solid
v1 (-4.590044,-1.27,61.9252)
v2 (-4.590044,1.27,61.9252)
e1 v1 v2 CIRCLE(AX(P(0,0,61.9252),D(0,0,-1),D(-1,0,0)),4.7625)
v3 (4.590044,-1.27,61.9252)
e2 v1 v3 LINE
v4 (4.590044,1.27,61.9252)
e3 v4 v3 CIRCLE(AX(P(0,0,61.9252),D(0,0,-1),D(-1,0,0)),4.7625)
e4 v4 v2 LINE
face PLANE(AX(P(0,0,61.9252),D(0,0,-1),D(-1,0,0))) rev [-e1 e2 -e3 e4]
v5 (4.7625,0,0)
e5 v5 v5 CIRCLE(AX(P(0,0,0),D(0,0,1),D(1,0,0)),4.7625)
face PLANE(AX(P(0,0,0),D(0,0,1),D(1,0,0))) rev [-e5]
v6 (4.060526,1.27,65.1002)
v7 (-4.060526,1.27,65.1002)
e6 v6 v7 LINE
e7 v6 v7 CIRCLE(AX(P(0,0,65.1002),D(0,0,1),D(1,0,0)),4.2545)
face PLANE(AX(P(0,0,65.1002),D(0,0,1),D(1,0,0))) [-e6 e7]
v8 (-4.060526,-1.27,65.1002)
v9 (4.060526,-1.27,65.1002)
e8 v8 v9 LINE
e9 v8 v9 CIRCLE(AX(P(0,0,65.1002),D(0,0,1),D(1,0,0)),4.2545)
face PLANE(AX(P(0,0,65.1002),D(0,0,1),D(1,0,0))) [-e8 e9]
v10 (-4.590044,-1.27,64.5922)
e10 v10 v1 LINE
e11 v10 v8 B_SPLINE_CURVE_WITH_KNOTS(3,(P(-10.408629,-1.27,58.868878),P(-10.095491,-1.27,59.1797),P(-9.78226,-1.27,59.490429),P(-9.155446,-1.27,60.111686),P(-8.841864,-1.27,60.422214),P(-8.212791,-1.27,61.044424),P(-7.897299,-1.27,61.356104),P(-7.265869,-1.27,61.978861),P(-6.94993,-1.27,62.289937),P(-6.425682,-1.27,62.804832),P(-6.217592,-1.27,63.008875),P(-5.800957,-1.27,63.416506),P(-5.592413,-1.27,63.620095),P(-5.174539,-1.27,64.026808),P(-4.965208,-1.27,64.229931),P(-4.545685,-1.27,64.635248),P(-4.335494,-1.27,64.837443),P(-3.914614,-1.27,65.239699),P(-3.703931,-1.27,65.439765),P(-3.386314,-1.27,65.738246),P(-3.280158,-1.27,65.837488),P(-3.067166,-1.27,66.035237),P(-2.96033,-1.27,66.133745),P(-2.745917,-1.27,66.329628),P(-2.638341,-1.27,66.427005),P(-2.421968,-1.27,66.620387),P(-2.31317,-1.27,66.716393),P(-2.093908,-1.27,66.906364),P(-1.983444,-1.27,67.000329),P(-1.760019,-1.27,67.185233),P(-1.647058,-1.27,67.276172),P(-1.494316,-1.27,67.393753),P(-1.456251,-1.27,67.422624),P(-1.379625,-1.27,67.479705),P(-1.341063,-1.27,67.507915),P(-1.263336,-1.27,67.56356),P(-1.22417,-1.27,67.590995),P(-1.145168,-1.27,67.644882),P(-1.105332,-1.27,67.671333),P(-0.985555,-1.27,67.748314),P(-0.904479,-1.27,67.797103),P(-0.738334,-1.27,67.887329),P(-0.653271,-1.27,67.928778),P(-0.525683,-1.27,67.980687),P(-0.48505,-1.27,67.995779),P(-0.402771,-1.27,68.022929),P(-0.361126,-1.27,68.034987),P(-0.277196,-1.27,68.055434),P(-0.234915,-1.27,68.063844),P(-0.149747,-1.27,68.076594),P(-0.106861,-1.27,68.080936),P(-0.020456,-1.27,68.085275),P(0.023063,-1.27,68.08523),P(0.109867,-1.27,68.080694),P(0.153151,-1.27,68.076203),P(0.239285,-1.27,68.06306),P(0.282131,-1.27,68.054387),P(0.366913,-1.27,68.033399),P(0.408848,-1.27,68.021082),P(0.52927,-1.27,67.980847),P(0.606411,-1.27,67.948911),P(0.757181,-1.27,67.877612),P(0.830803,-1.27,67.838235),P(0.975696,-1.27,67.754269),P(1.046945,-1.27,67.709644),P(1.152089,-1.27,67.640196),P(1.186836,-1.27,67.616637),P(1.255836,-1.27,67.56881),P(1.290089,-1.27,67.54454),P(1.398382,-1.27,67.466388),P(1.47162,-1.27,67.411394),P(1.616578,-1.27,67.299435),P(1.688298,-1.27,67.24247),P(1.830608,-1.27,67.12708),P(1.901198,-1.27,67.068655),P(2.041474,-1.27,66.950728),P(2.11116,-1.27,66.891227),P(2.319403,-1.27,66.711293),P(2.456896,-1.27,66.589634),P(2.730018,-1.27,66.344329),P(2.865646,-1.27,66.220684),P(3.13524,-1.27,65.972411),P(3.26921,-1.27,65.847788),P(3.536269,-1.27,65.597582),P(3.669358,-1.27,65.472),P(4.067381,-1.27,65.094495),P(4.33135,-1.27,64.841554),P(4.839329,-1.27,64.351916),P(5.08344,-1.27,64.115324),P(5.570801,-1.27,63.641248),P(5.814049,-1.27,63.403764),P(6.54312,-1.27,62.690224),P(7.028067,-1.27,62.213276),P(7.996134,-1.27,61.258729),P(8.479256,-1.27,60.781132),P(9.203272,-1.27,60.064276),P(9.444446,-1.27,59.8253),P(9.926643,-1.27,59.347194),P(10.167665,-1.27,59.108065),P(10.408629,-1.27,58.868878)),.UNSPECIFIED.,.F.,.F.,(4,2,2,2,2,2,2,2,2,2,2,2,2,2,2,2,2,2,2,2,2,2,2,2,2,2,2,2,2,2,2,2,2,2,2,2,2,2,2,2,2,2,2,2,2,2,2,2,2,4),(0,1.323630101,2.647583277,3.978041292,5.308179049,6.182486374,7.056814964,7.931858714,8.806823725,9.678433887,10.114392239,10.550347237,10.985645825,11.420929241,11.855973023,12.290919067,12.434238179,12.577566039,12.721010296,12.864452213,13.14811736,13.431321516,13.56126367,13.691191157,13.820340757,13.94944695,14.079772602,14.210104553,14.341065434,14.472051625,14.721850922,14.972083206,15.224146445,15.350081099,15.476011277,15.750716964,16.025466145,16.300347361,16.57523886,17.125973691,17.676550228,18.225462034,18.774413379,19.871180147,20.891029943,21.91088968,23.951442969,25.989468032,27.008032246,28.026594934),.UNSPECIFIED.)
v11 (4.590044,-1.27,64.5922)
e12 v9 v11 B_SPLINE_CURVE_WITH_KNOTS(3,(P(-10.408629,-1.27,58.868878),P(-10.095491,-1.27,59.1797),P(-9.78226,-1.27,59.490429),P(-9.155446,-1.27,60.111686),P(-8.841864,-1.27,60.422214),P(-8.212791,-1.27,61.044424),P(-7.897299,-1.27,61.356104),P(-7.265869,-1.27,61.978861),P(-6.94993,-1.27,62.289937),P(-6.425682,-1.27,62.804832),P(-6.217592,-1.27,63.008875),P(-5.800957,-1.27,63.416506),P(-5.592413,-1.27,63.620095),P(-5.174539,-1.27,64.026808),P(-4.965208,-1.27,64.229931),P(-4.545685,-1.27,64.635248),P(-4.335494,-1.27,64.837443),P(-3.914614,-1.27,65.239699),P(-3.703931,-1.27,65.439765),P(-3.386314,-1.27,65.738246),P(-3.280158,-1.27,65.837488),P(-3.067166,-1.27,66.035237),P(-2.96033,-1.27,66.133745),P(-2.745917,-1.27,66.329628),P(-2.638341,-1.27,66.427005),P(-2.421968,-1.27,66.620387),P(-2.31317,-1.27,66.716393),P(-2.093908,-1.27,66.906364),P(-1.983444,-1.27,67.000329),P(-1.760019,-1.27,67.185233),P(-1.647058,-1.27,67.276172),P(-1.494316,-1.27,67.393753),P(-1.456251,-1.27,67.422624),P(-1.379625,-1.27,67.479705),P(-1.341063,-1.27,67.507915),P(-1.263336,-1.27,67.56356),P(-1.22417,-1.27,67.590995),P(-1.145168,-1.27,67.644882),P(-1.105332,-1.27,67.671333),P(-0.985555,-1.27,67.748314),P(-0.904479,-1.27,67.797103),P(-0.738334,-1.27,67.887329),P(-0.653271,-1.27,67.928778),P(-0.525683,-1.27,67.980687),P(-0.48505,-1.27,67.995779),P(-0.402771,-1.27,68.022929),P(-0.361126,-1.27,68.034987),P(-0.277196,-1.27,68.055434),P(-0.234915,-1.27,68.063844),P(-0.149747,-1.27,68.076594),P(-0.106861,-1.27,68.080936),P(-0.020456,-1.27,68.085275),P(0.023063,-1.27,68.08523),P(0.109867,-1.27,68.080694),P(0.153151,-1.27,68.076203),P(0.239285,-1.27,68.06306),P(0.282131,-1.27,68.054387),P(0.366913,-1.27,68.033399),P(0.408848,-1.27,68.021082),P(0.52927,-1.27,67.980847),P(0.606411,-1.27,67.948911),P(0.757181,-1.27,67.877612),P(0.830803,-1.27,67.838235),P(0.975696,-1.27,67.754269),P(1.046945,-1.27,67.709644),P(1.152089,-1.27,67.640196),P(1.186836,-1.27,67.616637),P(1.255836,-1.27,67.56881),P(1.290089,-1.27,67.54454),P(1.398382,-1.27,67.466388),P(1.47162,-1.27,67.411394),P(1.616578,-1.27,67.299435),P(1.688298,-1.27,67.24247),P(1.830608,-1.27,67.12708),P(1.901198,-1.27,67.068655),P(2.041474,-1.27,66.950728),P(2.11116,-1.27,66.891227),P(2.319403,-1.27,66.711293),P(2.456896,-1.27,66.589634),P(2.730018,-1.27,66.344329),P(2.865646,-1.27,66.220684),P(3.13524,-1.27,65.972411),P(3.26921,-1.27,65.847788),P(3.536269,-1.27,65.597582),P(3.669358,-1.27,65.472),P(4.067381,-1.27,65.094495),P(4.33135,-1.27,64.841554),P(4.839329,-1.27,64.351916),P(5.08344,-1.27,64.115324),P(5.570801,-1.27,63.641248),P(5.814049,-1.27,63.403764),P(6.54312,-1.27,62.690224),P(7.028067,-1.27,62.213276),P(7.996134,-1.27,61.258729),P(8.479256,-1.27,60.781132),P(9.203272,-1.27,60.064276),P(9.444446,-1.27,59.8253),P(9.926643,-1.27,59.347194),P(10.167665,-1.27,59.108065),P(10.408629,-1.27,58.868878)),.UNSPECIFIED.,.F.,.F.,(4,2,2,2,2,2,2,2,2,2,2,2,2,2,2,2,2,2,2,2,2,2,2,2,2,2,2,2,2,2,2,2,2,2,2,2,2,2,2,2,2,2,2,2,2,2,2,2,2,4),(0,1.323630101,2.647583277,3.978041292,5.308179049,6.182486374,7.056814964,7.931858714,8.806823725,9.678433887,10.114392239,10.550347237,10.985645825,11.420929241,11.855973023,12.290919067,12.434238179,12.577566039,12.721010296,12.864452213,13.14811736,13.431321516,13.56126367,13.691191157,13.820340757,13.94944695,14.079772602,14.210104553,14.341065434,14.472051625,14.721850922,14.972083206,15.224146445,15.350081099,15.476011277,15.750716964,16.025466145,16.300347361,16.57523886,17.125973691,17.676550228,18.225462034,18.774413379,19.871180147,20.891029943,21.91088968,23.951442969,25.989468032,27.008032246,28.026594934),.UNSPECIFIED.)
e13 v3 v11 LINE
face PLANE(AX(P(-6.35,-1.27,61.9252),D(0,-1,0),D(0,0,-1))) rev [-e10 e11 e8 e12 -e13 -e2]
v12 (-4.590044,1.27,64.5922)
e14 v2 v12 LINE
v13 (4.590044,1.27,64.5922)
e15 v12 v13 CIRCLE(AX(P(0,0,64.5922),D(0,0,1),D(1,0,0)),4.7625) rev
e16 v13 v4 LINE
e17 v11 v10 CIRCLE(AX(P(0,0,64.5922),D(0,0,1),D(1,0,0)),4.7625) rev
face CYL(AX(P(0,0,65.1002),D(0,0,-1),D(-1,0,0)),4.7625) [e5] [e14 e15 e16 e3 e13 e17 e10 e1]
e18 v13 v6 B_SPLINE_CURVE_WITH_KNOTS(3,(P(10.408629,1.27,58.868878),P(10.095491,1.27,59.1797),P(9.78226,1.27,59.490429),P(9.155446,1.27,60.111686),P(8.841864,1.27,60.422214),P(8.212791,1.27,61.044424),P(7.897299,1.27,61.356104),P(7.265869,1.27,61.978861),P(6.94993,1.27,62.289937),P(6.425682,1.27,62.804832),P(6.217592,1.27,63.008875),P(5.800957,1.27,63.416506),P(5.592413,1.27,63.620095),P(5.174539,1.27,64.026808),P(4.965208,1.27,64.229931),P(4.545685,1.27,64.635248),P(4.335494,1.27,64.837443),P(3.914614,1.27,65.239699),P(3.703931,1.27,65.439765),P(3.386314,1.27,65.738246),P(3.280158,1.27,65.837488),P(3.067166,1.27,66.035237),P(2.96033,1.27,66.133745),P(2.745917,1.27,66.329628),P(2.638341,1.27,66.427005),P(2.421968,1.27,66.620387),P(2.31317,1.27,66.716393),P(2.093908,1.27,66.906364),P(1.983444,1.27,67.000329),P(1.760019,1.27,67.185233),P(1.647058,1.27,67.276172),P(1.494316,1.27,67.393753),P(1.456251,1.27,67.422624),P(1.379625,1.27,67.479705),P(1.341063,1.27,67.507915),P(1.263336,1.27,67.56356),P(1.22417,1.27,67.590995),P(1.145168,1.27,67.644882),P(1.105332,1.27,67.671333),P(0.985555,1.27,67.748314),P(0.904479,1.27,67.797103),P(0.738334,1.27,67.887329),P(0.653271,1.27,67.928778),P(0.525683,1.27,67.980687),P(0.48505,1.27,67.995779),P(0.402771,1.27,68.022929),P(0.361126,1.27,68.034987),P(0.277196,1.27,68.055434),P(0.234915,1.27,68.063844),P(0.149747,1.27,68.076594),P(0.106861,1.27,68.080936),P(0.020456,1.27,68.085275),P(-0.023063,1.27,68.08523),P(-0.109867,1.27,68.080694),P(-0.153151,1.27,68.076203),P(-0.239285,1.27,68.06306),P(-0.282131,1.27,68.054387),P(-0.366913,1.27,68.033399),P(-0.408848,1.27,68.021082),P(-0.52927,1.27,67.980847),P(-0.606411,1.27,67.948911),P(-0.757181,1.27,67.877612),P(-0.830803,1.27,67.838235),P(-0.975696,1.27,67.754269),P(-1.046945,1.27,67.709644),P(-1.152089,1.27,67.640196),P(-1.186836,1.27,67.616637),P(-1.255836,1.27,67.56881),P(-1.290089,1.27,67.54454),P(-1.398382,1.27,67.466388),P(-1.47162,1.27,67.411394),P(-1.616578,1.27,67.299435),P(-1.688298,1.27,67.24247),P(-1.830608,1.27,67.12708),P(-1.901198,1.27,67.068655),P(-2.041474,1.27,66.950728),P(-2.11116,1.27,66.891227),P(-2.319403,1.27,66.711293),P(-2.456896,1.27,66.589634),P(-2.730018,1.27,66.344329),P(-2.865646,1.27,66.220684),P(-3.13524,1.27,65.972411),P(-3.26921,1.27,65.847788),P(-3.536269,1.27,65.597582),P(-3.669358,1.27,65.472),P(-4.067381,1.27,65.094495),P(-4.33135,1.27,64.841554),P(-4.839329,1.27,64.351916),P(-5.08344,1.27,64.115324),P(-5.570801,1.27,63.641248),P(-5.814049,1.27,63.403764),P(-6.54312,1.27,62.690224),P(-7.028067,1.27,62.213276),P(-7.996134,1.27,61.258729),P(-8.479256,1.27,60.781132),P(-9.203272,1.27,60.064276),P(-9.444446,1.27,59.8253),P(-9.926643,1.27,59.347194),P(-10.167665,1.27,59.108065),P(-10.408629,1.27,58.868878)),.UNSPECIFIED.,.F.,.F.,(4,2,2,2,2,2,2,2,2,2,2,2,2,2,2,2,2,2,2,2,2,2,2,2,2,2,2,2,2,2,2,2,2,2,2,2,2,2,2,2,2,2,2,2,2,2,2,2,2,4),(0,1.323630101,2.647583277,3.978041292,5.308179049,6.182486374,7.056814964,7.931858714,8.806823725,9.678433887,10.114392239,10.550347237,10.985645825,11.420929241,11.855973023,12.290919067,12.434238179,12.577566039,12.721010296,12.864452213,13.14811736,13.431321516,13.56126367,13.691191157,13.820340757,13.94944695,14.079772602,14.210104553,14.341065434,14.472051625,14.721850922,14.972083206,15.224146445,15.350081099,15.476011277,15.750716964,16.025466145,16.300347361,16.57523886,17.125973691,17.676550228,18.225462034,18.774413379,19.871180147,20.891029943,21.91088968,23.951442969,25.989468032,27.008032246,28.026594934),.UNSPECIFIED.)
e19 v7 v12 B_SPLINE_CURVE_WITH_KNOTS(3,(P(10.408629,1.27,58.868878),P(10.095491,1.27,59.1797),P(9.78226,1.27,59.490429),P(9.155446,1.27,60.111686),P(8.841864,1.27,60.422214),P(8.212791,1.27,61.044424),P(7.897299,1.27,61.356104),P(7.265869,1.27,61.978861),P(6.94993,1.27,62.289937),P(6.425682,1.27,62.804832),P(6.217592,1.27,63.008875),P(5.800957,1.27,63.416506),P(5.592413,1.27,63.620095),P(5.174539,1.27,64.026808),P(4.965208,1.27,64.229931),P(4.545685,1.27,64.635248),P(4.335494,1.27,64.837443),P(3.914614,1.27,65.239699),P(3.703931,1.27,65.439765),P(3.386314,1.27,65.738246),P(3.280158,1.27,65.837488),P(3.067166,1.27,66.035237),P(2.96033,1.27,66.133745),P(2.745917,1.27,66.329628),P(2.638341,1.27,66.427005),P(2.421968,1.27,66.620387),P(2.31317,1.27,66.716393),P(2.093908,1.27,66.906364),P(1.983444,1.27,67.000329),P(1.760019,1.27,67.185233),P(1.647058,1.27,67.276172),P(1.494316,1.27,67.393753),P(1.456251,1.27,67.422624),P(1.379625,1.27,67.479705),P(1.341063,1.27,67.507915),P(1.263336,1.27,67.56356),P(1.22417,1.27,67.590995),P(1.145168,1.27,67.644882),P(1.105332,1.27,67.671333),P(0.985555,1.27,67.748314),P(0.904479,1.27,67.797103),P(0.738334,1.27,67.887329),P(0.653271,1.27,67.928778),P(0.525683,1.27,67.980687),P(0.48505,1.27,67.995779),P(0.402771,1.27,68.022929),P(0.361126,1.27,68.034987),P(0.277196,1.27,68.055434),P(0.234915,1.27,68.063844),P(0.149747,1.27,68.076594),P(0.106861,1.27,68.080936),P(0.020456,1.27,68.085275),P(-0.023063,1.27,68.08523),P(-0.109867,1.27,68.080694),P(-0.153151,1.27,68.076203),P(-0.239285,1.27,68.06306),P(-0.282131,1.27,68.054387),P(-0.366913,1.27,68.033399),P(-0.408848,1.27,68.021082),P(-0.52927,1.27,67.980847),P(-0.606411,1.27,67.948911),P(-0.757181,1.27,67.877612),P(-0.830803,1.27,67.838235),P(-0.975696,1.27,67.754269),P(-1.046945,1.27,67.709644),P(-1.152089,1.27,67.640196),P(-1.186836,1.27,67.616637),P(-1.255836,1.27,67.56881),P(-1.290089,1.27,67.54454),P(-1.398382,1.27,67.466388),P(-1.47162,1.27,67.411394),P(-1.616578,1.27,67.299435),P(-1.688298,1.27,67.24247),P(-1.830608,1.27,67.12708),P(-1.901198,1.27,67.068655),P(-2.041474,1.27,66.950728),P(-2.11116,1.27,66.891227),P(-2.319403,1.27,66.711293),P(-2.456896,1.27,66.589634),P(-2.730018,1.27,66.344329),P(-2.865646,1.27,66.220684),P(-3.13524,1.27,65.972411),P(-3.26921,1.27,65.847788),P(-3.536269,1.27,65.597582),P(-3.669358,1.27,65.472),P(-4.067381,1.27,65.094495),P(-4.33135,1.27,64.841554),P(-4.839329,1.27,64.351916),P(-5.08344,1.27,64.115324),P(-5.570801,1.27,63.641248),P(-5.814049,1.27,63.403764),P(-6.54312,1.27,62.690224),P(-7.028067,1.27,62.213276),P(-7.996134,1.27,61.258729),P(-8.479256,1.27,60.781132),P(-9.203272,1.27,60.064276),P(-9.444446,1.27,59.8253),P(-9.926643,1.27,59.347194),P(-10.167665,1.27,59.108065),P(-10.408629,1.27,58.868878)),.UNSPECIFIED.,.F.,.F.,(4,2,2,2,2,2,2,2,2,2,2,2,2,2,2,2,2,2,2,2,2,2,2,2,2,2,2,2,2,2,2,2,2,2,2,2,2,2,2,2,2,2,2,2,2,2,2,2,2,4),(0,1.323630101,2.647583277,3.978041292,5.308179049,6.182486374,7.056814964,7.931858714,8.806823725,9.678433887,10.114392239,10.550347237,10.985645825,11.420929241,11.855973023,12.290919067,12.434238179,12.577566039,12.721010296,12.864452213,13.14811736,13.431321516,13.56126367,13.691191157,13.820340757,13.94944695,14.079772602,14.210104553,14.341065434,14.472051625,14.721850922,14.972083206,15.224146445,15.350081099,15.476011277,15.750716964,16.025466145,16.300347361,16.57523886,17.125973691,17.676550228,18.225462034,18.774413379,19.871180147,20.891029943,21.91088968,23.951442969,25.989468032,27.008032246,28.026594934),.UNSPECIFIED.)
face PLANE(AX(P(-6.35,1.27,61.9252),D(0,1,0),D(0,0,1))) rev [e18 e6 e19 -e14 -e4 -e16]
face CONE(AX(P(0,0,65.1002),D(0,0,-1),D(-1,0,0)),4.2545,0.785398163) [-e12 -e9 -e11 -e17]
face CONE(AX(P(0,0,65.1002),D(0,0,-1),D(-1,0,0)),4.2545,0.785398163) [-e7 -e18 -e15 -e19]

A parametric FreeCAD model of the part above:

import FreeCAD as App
import Part
import Sketcher

V = App.Vector
Q = App.Units.Quantity


def edges_at(feature, points):
    """Names of the edges that pass closest to the given points."""
    edges = feature.Shape.Edges
    near = lambda p: min(range(len(edges)), key=lambda i: edges[i].distToShape(Part.Vertex(*p))[0])
    return sorted({f"Edge{near(p) + 1}" for p in points})

doc = App.newDocument("Part")
params = doc.addObject("Spreadsheet::Sheet", "Params")
for row, (alias, value) in enumerate([
    ("sketch1_diameter", "0.375 in"),
    ("pad1_length", "2.563 in"),
    ("chamfer_size", "0.02 in"),
    ("sketch2_width", "0.5 in"),
    ("sketch2_height", "0.1 in"),
    ("pocket1_length", "0.125 in"),
], start=1):
    params.set(f"A{row}", alias)
    params.set(f"B{row}", "=" + value)
    params.setAlias(f"B{row}", alias)

body = doc.addObject("PartDesign::Body", "Body")

# Sketch on XY plane
sketch1 = body.newObject("Sketcher::SketchObject", "Sketch")
sketch1.AttachmentSupport = (doc.getObject("XY_Plane"), [""])
sketch1.MapMode = "FlatFace"
sketch1.addGeometry(Part.Circle(V(0, 0, 0), V(0, 0, 1), 4.8), False)
sketch1.addConstraint([
    Sketcher.Constraint("Coincident", 0, 3, -1, 1),
    Sketcher.Constraint("Diameter", 0, Q("0.375 in")),
])
sketch1.setExpression("Constraints[1]", "Params.sketch1_diameter")
pad1 = body.newObject("PartDesign::Pad", "Pad")
pad1.Profile = sketch1
pad1.setExpression("Length", "Params.pad1_length")
doc.recompute()

chamfer = body.newObject("PartDesign::Chamfer", "Chamfer")
chamfer.Base = (pad1, edges_at(pad1, [(-4.763, 0, 65.1)]))
chamfer.setExpression("Size", "Params.chamfer_size")

# Sketch on XY plane
sketch2 = body.newObject("Sketcher::SketchObject", "Sketch001")
sketch2.AttachmentSupport = (doc.getObject("XY_Plane"), [""])
sketch2.MapMode = "FlatFace"
sketch2.AttachmentOffset = App.Placement(V(0, 0, 2.563 * 25.4), App.Rotation())
sketch2.addGeometry([
    Part.LineSegment(V(-6.3, 1.3, 0), V(-6.3, -1.3, 0)),
    Part.LineSegment(V(-6.3, -1.3, 0), V(6.3, -1.3, 0)),
    Part.LineSegment(V(6.3, -1.3, 0), V(6.3, 1.3, 0)),
    Part.LineSegment(V(6.3, 1.3, 0), V(-6.3, 1.3, 0)),
], False)
sketch2.addConstraint([
    Sketcher.Constraint("Coincident", 0, 2, 1, 1),
    Sketcher.Constraint("Coincident", 1, 2, 2, 1),
    Sketcher.Constraint("Coincident", 2, 2, 3, 1),
    Sketcher.Constraint("Coincident", 3, 2, 0, 1),
    Sketcher.Constraint("Vertical", 0),
    Sketcher.Constraint("Horizontal", 1),
    Sketcher.Constraint("Vertical", 2),
    Sketcher.Constraint("Horizontal", 3),
    Sketcher.Constraint("Symmetric", 0, 2, 2, 2, -1, 1),
    Sketcher.Constraint("DistanceX", 1, 1, 1, 2, Q("0.5 in")),
    Sketcher.Constraint("DistanceY", 0, 2, 0, 1, Q("0.1 in")),
])
sketch2.setExpression("Constraints[9]", "Params.sketch2_width")
sketch2.setExpression("Constraints[10]", "Params.sketch2_height")
pocket1 = body.newObject("PartDesign::Pocket", "Pocket")
pocket1.Profile = sketch2
pocket1.setExpression("Length", "Params.pocket1_length")

doc.recompute()
